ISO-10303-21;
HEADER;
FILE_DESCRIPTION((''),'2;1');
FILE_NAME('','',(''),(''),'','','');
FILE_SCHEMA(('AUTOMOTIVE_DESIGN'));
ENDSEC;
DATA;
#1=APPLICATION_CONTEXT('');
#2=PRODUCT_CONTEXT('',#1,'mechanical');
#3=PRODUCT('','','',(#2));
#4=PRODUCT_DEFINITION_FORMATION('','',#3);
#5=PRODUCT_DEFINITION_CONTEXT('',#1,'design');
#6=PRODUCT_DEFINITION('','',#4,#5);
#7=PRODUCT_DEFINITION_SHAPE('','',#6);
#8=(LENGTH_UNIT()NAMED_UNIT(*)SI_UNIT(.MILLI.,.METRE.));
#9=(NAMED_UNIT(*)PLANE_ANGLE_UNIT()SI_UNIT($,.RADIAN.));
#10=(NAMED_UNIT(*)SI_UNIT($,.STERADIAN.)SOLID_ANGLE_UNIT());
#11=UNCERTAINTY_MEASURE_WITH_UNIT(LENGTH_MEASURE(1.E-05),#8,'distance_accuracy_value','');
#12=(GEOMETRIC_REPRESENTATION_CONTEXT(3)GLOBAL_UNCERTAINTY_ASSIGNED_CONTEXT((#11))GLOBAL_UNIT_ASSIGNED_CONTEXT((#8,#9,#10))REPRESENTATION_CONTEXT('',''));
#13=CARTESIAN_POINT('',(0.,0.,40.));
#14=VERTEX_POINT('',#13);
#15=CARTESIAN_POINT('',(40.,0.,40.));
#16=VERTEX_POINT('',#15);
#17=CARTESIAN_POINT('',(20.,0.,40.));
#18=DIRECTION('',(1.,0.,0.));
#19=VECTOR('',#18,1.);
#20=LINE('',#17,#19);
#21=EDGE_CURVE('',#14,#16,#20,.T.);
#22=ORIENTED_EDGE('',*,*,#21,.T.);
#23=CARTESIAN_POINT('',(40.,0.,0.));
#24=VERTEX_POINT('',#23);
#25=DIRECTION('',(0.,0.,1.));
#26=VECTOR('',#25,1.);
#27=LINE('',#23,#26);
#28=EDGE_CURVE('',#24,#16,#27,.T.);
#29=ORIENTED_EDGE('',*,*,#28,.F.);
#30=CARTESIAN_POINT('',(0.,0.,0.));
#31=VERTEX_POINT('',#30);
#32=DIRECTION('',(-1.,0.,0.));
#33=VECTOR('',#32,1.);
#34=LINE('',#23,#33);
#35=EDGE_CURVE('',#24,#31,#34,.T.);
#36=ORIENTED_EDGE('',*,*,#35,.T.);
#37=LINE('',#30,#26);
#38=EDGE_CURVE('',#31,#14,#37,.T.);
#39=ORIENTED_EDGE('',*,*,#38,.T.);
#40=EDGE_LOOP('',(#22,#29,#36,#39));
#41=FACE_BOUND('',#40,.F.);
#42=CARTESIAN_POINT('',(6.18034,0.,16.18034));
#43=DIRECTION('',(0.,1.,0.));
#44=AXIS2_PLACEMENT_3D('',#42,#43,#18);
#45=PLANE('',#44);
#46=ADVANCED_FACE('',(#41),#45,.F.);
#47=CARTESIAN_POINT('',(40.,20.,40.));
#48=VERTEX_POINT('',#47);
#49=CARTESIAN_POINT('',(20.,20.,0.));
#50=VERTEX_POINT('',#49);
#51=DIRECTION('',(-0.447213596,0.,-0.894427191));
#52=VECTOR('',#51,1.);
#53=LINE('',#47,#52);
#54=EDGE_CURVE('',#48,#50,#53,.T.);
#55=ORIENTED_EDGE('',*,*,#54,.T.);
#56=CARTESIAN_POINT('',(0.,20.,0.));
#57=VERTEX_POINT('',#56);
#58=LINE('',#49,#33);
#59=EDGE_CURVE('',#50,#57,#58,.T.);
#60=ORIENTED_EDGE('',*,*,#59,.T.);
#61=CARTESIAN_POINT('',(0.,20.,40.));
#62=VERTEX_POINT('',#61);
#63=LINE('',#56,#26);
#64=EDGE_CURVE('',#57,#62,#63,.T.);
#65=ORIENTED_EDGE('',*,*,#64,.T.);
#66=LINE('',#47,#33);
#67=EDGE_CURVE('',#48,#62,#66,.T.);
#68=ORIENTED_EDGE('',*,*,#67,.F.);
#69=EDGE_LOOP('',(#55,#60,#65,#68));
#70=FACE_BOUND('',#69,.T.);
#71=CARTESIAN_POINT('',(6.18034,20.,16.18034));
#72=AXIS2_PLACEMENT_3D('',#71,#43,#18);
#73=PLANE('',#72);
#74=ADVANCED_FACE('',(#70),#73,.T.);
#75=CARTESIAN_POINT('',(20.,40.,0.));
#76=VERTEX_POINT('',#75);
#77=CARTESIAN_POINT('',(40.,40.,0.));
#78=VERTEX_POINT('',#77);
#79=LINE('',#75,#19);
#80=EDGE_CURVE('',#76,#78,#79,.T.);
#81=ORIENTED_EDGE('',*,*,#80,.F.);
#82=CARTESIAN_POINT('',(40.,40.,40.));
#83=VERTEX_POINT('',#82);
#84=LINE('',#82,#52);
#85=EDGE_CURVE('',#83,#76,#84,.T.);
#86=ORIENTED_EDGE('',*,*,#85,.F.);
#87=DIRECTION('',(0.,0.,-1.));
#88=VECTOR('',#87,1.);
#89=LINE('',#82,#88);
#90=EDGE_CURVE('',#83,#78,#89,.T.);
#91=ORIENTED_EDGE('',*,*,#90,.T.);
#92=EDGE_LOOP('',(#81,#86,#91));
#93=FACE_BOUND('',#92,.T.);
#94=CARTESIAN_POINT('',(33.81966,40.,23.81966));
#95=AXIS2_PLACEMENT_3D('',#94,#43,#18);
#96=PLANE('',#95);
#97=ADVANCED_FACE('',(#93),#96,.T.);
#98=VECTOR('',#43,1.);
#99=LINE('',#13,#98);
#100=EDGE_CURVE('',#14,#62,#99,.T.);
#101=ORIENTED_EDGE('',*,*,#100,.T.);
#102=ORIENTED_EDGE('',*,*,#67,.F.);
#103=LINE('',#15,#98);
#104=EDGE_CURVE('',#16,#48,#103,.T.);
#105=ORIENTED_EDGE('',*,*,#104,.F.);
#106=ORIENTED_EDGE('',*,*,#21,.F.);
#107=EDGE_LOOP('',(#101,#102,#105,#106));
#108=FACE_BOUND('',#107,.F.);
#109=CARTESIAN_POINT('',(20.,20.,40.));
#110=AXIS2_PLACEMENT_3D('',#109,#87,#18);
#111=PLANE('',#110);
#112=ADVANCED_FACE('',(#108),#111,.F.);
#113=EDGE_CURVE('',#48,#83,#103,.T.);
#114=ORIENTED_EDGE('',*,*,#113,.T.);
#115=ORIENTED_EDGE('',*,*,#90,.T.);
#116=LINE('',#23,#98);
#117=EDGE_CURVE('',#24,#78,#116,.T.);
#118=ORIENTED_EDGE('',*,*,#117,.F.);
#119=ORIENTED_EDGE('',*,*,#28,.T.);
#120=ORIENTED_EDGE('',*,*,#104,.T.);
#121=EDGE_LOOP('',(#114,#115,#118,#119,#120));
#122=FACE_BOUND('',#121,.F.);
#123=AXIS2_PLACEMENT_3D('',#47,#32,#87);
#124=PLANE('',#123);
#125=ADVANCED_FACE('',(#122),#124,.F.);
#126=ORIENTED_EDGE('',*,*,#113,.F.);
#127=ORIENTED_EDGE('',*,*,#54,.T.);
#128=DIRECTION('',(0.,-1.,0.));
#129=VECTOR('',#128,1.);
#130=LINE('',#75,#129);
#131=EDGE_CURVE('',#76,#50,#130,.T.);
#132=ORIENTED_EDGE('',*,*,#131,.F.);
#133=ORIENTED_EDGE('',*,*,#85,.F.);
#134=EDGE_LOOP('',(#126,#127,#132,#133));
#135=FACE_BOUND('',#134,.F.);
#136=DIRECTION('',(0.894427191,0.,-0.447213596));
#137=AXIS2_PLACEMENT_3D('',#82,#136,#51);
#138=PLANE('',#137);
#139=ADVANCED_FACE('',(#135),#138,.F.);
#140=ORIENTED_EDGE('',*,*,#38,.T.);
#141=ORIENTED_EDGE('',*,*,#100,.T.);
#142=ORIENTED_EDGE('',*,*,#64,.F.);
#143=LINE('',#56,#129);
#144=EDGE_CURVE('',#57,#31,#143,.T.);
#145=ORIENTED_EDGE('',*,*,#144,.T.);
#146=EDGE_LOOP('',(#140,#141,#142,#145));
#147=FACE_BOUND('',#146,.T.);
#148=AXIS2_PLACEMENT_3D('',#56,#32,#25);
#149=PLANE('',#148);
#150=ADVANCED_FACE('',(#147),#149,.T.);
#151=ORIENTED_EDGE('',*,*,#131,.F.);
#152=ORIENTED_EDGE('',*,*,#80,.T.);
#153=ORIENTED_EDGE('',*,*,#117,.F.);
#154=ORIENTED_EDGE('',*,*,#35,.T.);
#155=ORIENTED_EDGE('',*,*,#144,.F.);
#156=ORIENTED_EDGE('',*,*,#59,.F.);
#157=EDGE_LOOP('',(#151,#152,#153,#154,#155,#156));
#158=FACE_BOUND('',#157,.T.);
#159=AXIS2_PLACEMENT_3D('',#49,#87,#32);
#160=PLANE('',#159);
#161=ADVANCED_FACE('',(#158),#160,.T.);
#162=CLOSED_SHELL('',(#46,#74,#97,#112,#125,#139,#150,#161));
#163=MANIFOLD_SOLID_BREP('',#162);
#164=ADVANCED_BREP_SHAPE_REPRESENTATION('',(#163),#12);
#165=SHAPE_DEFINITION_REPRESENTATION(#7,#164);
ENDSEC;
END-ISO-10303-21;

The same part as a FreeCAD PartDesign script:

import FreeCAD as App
import Part
import Sketcher
from FreeCAD import Vector
Q = App.Units.Quantity

doc = App.newDocument("Part")
body = doc.addObject("PartDesign::Body", "Body")

# Sketch on XY plane
sketch1 = doc.addObject("Sketcher::SketchObject", "Sketch")
body.addObject(sketch1)
sketch1.AttachmentSupport = (doc.XY_Plane, [""])
sketch1.MapMode = "FlatFace"
sketch1.addGeometry([
    Part.LineSegment(Vector(0, 20, 0), Vector(0, 0, 0)),
    Part.LineSegment(Vector(0, 0, 0), Vector(40, 0, 0)),
    Part.LineSegment(Vector(40, 0, 0), Vector(40, 20, 0)),
    Part.LineSegment(Vector(40, 20, 0), Vector(0, 20, 0)),
], False)
sketch1.addConstraint([
    Sketcher.Constraint("Coincident", 0, 2, 1, 1),
    Sketcher.Constraint("Coincident", 1, 2, 2, 1),
    Sketcher.Constraint("Coincident", 2, 2, 3, 1),
    Sketcher.Constraint("Coincident", 3, 2, 0, 1),
    Sketcher.Constraint("Vertical", 0),
    Sketcher.Constraint("Horizontal", 1),
    Sketcher.Constraint("Vertical", 2),
    Sketcher.Constraint("Horizontal", 3),
    Sketcher.Constraint("Coincident", 0, 2, -1, 1),
    Sketcher.Constraint("DistanceX", 1, 1, 1, 2, Q("40 mm")),
    Sketcher.Constraint("DistanceY", 0, 2, 0, 1, Q("20 mm")),
])
pad1 = doc.addObject("PartDesign::Pad", "Pad")
body.addObject(pad1)
pad1.Profile = sketch1
pad1.Length = 40

# Sketch on XZ plane
sketch2 = doc.addObject("Sketcher::SketchObject", "Sketch001")
body.addObject(sketch2)
sketch2.AttachmentSupport = (doc.XZ_Plane, [""])
sketch2.MapMode = "FlatFace"
sketch2.AttachmentOffset = App.Placement(Vector(0, 0, -20), App.Rotation())
sketch2.addGeometry([
    Part.LineSegment(Vector(0, 40, 0), Vector(20, 0, 0)),
    Part.LineSegment(Vector(20, 0, 0), Vector(0, 0, 0)),
    Part.LineSegment(Vector(0, 0, 0), Vector(0, 40, 0)),
], False)
sketch2.addConstraint([
    Sketcher.Constraint("Coincident", 0, 2, 1, 1),
    Sketcher.Constraint("Coincident", 1, 2, 2, 1),
    Sketcher.Constraint("Coincident", 2, 2, 0, 1),
    Sketcher.Constraint("Horizontal", 1),
    Sketcher.Constraint("Vertical", 2),
    Sketcher.Constraint("Coincident", 1, 2, -1, 1),
    Sketcher.Constraint("DistanceX", 1, 2, 1, 1, Q("20 mm")),
    Sketcher.Constraint("DistanceY", 2, 1, 2, 2, Q("40 mm")),
])
pocket1 = doc.addObject("PartDesign::Pocket", "Pocket")
body.addObject(pocket1)
pocket1.Profile = sketch2
pocket1.Length = 40
pocket1.Reversed = True

# Sketch on XZ plane
sketch3 = doc.addObject("Sketcher::SketchObject", "Sketch002")
body.addObject(sketch3)
sketch3.AttachmentSupport = (doc.XZ_Plane, [""])
sketch3.MapMode = "FlatFace"
sketch3.AttachmentOffset = App.Placement(Vector(0, 0, -20), App.Rotation())
sketch3.addGeometry([
    Part.LineSegment(Vector(40, 40, 0), Vector(40, 0, 0)),
    Part.LineSegment(Vector(40, 0, 0), Vector(20, 40, 0)),
    Part.LineSegment(Vector(20, 40, 0), Vector(40, 40, 0)),
], False)
sketch3.addConstraint([
    Sketcher.Constraint("Coincident", 0, 2, 1, 1),
    Sketcher.Constraint("Coincident", 1, 2, 2, 1),
    Sketcher.Constraint("Coincident", 2, 2, 0, 1),
    Sketcher.Constraint("Vertical", 0),
    Sketcher.Constraint("Horizontal", 2),
    Sketcher.Constraint("PointOnObject", 0, 2, -1),
    Sketcher.Constraint("DistanceX", 2, 1, 2, 2, Q("20 mm")),
    Sketcher.Constraint("DistanceY", 0, 2, 0, 1, Q("40 mm")),
    Sketcher.Constraint("DistanceX", -1, 1, 0, 2, Q("40 mm")),
])
pad2 = doc.addObject("PartDesign::Pad", "Pad001")
body.addObject(pad2)
pad2.Profile = sketch3
pad2.Length = 20
pad2.Reversed = True

# Sketch on XZ plane
sketch4 = doc.addObject("Sketcher::SketchObject", "Sketch003")
body.addObject(sketch4)
sketch4.AttachmentSupport = (doc.XZ_Plane, [""])
sketch4.MapMode = "FlatFace"
sketch4.AttachmentOffset = App.Placement(Vector(0, 0, -20), App.Rotation())
sketch4.addGeometry([
    Part.LineSegment(Vector(20, 0, 0), Vector(0, 40, 0)),
    Part.LineSegment(Vector(0, 40, 0), Vector(20, 40, 0)),
    Part.LineSegment(Vector(20, 40, 0), Vector(40, 0, 0)),
    Part.LineSegment(Vector(40, 0, 0), Vector(20, 0, 0)),
], False)
sketch4.addConstraint([
    Sketcher.Constraint("Coincident", 0, 2, 1, 1),
    Sketcher.Constraint("Coincident", 1, 2, 2, 1),
    Sketcher.Constraint("Coincident", 2, 2, 3, 1),
    Sketcher.Constraint("Coincident", 3, 2, 0, 1),
    Sketcher.Constraint("Horizontal", 1),
    Sketcher.Constraint("Horizontal", 3),
    Sketcher.Constraint("PointOnObject", 0, 2, -2),
    Sketcher.Constraint("PointOnObject", 2, 2, -1),
    Sketcher.Constraint("Parallel", 0, 2),
    Sketcher.Constraint("Vertical", 1, 2, 3, 2),
    Sketcher.Constraint("DistanceX", 1, 1, 1, 2, Q("20 mm")),
    Sketcher.Constraint("DistanceY", -1, 1, 0, 2, Q("40 mm")),
])
pad3 = doc.addObject("PartDesign::Pad", "Pad002")
body.addObject(pad3)
pad3.Profile = sketch4
pad3.Length = 20
pad3.Reversed = True

# Sketch on XZ plane
sketch5 = doc.addObject("Sketcher::SketchObject", "Sketch004")
body.addObject(sketch5)
sketch5.AttachmentSupport = (doc.XZ_Plane, [""])
sketch5.MapMode = "FlatFace"
sketch5.AttachmentOffset = App.Placement(Vector(0, 0, -40), App.Rotation())
sketch5.addGeometry([
    Part.LineSegment(Vector(40, 0, 0), Vector(20, 40, 0)),
    Part.LineSegment(Vector(20, 40, 0), Vector(40, 40, 0)),
    Part.LineSegment(Vector(40, 40, 0), Vector(40, 0, 0)),
], False)
sketch5.addConstraint([
    Sketcher.Constraint("Coincident", 0, 2, 1, 1),
    Sketcher.Constraint("Coincident", 1, 2, 2, 1),
    Sketcher.Constraint("Coincident", 2, 2, 0, 1),
    Sketcher.Constraint("Horizontal", 1),
    Sketcher.Constraint("Vertical", 2),
    Sketcher.Constraint("PointOnObject", 2, 2, -1),
    Sketcher.Constraint("DistanceX", 1, 1, 1, 2, Q("20 mm")),
    Sketcher.Constraint("DistanceY", 2, 2, 2, 1, Q("40 mm")),
    Sketcher.Constraint("DistanceX", -1, 1, 0, 2, Q("20 mm")),
])
pocket2 = doc.addObject("PartDesign::Pocket", "Pocket001")
body.addObject(pocket2)
pocket2.Profile = sketch5
pocket2.Length = 20
pocket2.Reversed = True

# Sketch on XY plane
sketch6 = doc.addObject("Sketcher::SketchObject", "Sketch005")
body.addObject(sketch6)
sketch6.AttachmentSupport = (doc.XY_Plane, [""])
sketch6.MapMode = "FlatFace"
sketch6.AttachmentOffset = App.Placement(Vector(0, 0, 40), App.Rotation())
sketch6.addGeometry([
    Part.LineSegment(Vector(0, 40, 0), Vector(0, 20, 0)),
    Part.LineSegment(Vector(0, 20, 0), Vector(20, 20, 0)),
    Part.LineSegment(Vector(20, 20, 0), Vector(20, 40, 0)),
    Part.LineSegment(Vector(20, 40, 0), Vector(0, 40, 0)),
], False)
sketch6.addConstraint([
    Sketcher.Constraint("Coincident", 0, 2, 1, 1),
    Sketcher.Constraint("Coincident", 1, 2, 2, 1),
    Sketcher.Constraint("Coincident", 2, 2, 3, 1),
    Sketcher.Constraint("Coincident", 3, 2, 0, 1),
    Sketcher.Constraint("Vertical", 0),
    Sketcher.Constraint("Horizontal", 1),
    Sketcher.Constraint("Vertical", 2),
    Sketcher.Constraint("Horizontal", 3),
    Sketcher.Constraint("PointOnObject", 0, 2, -2),
    Sketcher.Constraint("Equal", 3, 0),
    Sketcher.Constraint("DistanceX", 1, 1, 1, 2, Q("20 mm")),
    Sketcher.Constraint("DistanceY", -1, 1, 0, 2, Q("20 mm")),
])
pocket3 = doc.addObject("PartDesign::Pocket", "Pocket002")
body.addObject(pocket3)
pocket3.Profile = sketch6
pocket3.Length = 109

# Sketch on XZ plane
sketch7 = doc.addObject("Sketcher::SketchObject", "Sketch006")
body.addObject(sketch7)
sketch7.AttachmentSupport = (doc.XZ_Plane, [""])
sketch7.MapMode = "FlatFace"
sketch7.AttachmentOffset = App.Placement(Vector(0, 0, -20), App.Rotation())
sketch7.addGeometry([
    Part.LineSegment(Vector(20, 0, 0), Vector(0, 0, 0)),
    Part.LineSegment(Vector(0, 0, 0), Vector(0, 40, 0)),
    Part.LineSegment(Vector(0, 40, 0), Vector(20, 0, 0)),
], False)
sketch7.addConstraint([
    Sketcher.Constraint("Coincident", 0, 2, 1, 1),
    Sketcher.Constraint("Coincident", 1, 2, 2, 1),
    Sketcher.Constraint("Coincident", 2, 2, 0, 1),
    Sketcher.Constraint("Horizontal", 0),
    Sketcher.Constraint("Vertical", 1),
    Sketcher.Constraint("Coincident", 0, 2, -1, 1),
    Sketcher.Constraint("DistanceX", 0, 2, 0, 1, Q("20 mm")),
    Sketcher.Constraint("DistanceY", 1, 1, 1, 2, Q("40 mm")),
])
pad4 = doc.addObject("PartDesign::Pad", "Pad003")
body.addObject(pad4)
pad4.Profile = sketch7
pad4.Length = 20

# Sketch on XZ plane
sketch8 = doc.addObject("Sketcher::SketchObject", "Sketch007")
body.addObject(sketch8)
sketch8.AttachmentSupport = (doc.XZ_Plane, [""])
sketch8.MapMode = "FlatFace"
sketch8.AttachmentOffset = App.Placement(Vector(0, 0, -20), App.Rotation())
sketch8.addGeometry([
    Part.LineSegment(Vector(20, 40, 0), Vector(40, 40, 0)),
    Part.LineSegment(Vector(40, 40, 0), Vector(40, 0, 0)),
    Part.LineSegment(Vector(40, 0, 0), Vector(20, 40, 0)),
], False)
sketch8.addConstraint([
    Sketcher.Constraint("Coincident", 0, 2, 1, 1),
    Sketcher.Constraint("Coincident", 1, 2, 2, 1),
    Sketcher.Constraint("Coincident", 2, 2, 0, 1),
    Sketcher.Constraint("Horizontal", 0),
    Sketcher.Constraint("Vertical", 1),
    Sketcher.Constraint("PointOnObject", 1, 2, -1),
    Sketcher.Constraint("DistanceX", 0, 1, 0, 2, Q("20 mm")),
    Sketcher.Constraint("DistanceY", 1, 2, 1, 1, Q("40 mm")),
    Sketcher.Constraint("DistanceX", -1, 1, 0, 2, Q("40 mm")),
])
pad5 = doc.addObject("PartDesign::Pad", "Pad004")
body.addObject(pad5)
pad5.Profile = sketch8
pad5.Length = 20
pad5.Reversed = True

# Sketch on XZ plane
sketch9 = doc.addObject("Sketcher::SketchObject", "Sketch008")
body.addObject(sketch9)
sketch9.AttachmentSupport = (doc.XZ_Plane, [""])
sketch9.MapMode = "FlatFace"
sketch9.AttachmentOffset = App.Placement(Vector(0, 0, -40), App.Rotation())
sketch9.addGeometry([
    Part.LineSegment(Vector(20, 0, 0), Vector(20, 40, 0)),
    Part.LineSegment(Vector(20, 40, 0), Vector(40, 40, 0)),
    Part.LineSegment(Vector(40, 40, 0), Vector(20, 0, 0)),
], False)
sketch9.addConstraint([
    Sketcher.Constraint("Coincident", 0, 2, 1, 1),
    Sketcher.Constraint("Coincident", 1, 2, 2, 1),
    Sketcher.Constraint("Coincident", 2, 2, 0, 1),
    Sketcher.Constraint("Vertical", 0),
    Sketcher.Constraint("Horizontal", 1),
    Sketcher.Constraint("PointOnObject", 2, 2, -1),
    Sketcher.Constraint("DistanceX", 1, 1, 1, 2, Q("20 mm")),
    Sketcher.Constraint("DistanceY", 0, 1, 0, 2, Q("40 mm")),
    Sketcher.Constraint("DistanceX", -1, 1, 0, 2, Q("20 mm")),
])
pocket4 = doc.addObject("PartDesign::Pocket", "Pocket003")
body.addObject(pocket4)
pocket4.Profile = sketch9
pocket4.Length = 20
pocket4.Reversed = True

doc.recompute()
